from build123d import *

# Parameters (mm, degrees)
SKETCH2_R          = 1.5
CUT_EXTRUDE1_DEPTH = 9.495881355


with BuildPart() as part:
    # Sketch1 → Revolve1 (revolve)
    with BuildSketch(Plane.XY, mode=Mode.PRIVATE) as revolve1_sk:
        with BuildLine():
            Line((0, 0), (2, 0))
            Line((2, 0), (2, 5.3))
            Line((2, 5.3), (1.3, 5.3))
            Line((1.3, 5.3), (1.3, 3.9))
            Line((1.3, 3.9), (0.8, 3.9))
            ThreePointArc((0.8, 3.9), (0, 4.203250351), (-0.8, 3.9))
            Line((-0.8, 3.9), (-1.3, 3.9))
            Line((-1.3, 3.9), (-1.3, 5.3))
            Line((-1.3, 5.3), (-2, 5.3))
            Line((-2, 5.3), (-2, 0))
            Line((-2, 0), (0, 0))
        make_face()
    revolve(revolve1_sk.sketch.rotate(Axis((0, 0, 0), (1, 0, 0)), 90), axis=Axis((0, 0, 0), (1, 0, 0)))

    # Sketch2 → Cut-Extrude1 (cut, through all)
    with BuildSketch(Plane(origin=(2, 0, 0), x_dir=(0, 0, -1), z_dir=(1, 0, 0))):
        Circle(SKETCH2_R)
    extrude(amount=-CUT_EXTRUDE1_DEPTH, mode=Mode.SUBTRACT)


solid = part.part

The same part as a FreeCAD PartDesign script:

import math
import FreeCAD as App
import Part
import Sketcher
from FreeCAD import Vector
Q = App.Units.Quantity

doc = App.newDocument("Part")
body = doc.addObject("PartDesign::Body", "Body")

sketch1 = body.newObject("Sketcher::SketchObject", "Sketch")
sketch1.AttachmentSupport = (doc.getObject("XY_Plane"), [""])
sketch1.MapMode = "FlatFace"
sketch1.addGeometry([
    Part.LineSegment(Vector(2, 0, 0), Vector(2, 5.3, 0)),
    Part.LineSegment(Vector(2, 5.3, 0), Vector(1.3, 5.3, 0)),
    Part.LineSegment(Vector(1.3, 5.3, 0), Vector(1.3, 3.9, 0)),
    Part.LineSegment(Vector(1.3, 3.9, 0), Vector(0.8, 3.9, 0)),
    Part.ArcOfCircle(Part.Circle(Vector(0, 3, 0), Vector(0, 0, 1), 1.2), math.radians(48), math.radians(132)),
    Part.LineSegment(Vector(-0.8, 3.9, 0), Vector(-1.3, 3.9, 0)),
    Part.LineSegment(Vector(-1.3, 3.9, 0), Vector(-1.3, 5.3, 0)),
    Part.LineSegment(Vector(-1.3, 5.3, 0), Vector(-2, 5.3, 0)),
    Part.LineSegment(Vector(-2, 5.3, 0), Vector(-2, 0, 0)),
    Part.LineSegment(Vector(-2, 0, 0), Vector(2, 0, 0)),
], False)
sketch1.addConstraint([
    Sketcher.Constraint("Coincident", 0, 2, 1, 1),
    Sketcher.Constraint("Coincident", 1, 2, 2, 1),
    Sketcher.Constraint("Coincident", 2, 2, 3, 1),
    Sketcher.Constraint("Coincident", 3, 2, 4, 1),
    Sketcher.Constraint("Coincident", 4, 2, 5, 1),
    Sketcher.Constraint("Coincident", 5, 2, 6, 1),
    Sketcher.Constraint("Coincident", 6, 2, 7, 1),
    Sketcher.Constraint("Coincident", 7, 2, 8, 1),
    Sketcher.Constraint("Coincident", 8, 2, 9, 1),
    Sketcher.Constraint("Coincident", 9, 2, 0, 1),
    Sketcher.Constraint("Vertical", 0),
    Sketcher.Constraint("Horizontal", 1),
    Sketcher.Constraint("Vertical", 2),
    Sketcher.Constraint("Horizontal", 3),
    Sketcher.Constraint("Horizontal", 5),
    Sketcher.Constraint("Vertical", 6),
    Sketcher.Constraint("Horizontal", 7),
    Sketcher.Constraint("Vertical", 8),
    Sketcher.Constraint("Horizontal", 9),
    Sketcher.Constraint("Symmetric", 8, 2, 9, 2, -1, 1),
    Sketcher.Constraint("Symmetric", 3, 2, 4, 2, -2),
    Sketcher.Constraint("Symmetric", 1, 2, 6, 2, -2),
    Sketcher.Constraint("DistanceX", 9, 1, 9, 2, Q("4 mm")),
    Sketcher.Constraint("DistanceX", 1, 2, 1, 1, Q("0.7 mm")),
    Sketcher.Constraint("DistanceX", 3, 2, 3, 1, Q("0.5 mm")),
    Sketcher.Constraint("DistanceY", 0, 1, 0, 2, Q("5.3 mm")),
    Sketcher.Constraint("DistanceY", 2, 2, 2, 1, Q("1.4 mm")),
    Sketcher.Constraint("Radius", 4, Q("1.206859 mm")),
])
revolution = body.newObject("PartDesign::Revolution", "Revolution")
revolution.Profile = sketch1
revolution.ReferenceAxis = (sketch1, ["H_Axis"])
revolution.Angle = 360

sketch2 = body.newObject("Sketcher::SketchObject", "Sketch001")
sketch2.AttachmentSupport = (doc.getObject("YZ_Plane"), [""])
sketch2.MapMode = "FlatFace"
sketch2.AttachmentOffset = App.Placement(Vector(0, 0, 2), App.Rotation())
sketch2.addGeometry(Part.Circle(Vector(0, 0, 0), Vector(0, 0, 1), 1.5), False)
sketch2.addConstraint([
    Sketcher.Constraint("Coincident", 0, 3, -1, 1),
    Sketcher.Constraint("Diameter", 0, Q("3 mm")),
])
pocket1 = body.newObject("PartDesign::Pocket", "Pocket")
pocket1.Profile = sketch2
pocket1.Type = "ThroughAll"

doc.recompute()
